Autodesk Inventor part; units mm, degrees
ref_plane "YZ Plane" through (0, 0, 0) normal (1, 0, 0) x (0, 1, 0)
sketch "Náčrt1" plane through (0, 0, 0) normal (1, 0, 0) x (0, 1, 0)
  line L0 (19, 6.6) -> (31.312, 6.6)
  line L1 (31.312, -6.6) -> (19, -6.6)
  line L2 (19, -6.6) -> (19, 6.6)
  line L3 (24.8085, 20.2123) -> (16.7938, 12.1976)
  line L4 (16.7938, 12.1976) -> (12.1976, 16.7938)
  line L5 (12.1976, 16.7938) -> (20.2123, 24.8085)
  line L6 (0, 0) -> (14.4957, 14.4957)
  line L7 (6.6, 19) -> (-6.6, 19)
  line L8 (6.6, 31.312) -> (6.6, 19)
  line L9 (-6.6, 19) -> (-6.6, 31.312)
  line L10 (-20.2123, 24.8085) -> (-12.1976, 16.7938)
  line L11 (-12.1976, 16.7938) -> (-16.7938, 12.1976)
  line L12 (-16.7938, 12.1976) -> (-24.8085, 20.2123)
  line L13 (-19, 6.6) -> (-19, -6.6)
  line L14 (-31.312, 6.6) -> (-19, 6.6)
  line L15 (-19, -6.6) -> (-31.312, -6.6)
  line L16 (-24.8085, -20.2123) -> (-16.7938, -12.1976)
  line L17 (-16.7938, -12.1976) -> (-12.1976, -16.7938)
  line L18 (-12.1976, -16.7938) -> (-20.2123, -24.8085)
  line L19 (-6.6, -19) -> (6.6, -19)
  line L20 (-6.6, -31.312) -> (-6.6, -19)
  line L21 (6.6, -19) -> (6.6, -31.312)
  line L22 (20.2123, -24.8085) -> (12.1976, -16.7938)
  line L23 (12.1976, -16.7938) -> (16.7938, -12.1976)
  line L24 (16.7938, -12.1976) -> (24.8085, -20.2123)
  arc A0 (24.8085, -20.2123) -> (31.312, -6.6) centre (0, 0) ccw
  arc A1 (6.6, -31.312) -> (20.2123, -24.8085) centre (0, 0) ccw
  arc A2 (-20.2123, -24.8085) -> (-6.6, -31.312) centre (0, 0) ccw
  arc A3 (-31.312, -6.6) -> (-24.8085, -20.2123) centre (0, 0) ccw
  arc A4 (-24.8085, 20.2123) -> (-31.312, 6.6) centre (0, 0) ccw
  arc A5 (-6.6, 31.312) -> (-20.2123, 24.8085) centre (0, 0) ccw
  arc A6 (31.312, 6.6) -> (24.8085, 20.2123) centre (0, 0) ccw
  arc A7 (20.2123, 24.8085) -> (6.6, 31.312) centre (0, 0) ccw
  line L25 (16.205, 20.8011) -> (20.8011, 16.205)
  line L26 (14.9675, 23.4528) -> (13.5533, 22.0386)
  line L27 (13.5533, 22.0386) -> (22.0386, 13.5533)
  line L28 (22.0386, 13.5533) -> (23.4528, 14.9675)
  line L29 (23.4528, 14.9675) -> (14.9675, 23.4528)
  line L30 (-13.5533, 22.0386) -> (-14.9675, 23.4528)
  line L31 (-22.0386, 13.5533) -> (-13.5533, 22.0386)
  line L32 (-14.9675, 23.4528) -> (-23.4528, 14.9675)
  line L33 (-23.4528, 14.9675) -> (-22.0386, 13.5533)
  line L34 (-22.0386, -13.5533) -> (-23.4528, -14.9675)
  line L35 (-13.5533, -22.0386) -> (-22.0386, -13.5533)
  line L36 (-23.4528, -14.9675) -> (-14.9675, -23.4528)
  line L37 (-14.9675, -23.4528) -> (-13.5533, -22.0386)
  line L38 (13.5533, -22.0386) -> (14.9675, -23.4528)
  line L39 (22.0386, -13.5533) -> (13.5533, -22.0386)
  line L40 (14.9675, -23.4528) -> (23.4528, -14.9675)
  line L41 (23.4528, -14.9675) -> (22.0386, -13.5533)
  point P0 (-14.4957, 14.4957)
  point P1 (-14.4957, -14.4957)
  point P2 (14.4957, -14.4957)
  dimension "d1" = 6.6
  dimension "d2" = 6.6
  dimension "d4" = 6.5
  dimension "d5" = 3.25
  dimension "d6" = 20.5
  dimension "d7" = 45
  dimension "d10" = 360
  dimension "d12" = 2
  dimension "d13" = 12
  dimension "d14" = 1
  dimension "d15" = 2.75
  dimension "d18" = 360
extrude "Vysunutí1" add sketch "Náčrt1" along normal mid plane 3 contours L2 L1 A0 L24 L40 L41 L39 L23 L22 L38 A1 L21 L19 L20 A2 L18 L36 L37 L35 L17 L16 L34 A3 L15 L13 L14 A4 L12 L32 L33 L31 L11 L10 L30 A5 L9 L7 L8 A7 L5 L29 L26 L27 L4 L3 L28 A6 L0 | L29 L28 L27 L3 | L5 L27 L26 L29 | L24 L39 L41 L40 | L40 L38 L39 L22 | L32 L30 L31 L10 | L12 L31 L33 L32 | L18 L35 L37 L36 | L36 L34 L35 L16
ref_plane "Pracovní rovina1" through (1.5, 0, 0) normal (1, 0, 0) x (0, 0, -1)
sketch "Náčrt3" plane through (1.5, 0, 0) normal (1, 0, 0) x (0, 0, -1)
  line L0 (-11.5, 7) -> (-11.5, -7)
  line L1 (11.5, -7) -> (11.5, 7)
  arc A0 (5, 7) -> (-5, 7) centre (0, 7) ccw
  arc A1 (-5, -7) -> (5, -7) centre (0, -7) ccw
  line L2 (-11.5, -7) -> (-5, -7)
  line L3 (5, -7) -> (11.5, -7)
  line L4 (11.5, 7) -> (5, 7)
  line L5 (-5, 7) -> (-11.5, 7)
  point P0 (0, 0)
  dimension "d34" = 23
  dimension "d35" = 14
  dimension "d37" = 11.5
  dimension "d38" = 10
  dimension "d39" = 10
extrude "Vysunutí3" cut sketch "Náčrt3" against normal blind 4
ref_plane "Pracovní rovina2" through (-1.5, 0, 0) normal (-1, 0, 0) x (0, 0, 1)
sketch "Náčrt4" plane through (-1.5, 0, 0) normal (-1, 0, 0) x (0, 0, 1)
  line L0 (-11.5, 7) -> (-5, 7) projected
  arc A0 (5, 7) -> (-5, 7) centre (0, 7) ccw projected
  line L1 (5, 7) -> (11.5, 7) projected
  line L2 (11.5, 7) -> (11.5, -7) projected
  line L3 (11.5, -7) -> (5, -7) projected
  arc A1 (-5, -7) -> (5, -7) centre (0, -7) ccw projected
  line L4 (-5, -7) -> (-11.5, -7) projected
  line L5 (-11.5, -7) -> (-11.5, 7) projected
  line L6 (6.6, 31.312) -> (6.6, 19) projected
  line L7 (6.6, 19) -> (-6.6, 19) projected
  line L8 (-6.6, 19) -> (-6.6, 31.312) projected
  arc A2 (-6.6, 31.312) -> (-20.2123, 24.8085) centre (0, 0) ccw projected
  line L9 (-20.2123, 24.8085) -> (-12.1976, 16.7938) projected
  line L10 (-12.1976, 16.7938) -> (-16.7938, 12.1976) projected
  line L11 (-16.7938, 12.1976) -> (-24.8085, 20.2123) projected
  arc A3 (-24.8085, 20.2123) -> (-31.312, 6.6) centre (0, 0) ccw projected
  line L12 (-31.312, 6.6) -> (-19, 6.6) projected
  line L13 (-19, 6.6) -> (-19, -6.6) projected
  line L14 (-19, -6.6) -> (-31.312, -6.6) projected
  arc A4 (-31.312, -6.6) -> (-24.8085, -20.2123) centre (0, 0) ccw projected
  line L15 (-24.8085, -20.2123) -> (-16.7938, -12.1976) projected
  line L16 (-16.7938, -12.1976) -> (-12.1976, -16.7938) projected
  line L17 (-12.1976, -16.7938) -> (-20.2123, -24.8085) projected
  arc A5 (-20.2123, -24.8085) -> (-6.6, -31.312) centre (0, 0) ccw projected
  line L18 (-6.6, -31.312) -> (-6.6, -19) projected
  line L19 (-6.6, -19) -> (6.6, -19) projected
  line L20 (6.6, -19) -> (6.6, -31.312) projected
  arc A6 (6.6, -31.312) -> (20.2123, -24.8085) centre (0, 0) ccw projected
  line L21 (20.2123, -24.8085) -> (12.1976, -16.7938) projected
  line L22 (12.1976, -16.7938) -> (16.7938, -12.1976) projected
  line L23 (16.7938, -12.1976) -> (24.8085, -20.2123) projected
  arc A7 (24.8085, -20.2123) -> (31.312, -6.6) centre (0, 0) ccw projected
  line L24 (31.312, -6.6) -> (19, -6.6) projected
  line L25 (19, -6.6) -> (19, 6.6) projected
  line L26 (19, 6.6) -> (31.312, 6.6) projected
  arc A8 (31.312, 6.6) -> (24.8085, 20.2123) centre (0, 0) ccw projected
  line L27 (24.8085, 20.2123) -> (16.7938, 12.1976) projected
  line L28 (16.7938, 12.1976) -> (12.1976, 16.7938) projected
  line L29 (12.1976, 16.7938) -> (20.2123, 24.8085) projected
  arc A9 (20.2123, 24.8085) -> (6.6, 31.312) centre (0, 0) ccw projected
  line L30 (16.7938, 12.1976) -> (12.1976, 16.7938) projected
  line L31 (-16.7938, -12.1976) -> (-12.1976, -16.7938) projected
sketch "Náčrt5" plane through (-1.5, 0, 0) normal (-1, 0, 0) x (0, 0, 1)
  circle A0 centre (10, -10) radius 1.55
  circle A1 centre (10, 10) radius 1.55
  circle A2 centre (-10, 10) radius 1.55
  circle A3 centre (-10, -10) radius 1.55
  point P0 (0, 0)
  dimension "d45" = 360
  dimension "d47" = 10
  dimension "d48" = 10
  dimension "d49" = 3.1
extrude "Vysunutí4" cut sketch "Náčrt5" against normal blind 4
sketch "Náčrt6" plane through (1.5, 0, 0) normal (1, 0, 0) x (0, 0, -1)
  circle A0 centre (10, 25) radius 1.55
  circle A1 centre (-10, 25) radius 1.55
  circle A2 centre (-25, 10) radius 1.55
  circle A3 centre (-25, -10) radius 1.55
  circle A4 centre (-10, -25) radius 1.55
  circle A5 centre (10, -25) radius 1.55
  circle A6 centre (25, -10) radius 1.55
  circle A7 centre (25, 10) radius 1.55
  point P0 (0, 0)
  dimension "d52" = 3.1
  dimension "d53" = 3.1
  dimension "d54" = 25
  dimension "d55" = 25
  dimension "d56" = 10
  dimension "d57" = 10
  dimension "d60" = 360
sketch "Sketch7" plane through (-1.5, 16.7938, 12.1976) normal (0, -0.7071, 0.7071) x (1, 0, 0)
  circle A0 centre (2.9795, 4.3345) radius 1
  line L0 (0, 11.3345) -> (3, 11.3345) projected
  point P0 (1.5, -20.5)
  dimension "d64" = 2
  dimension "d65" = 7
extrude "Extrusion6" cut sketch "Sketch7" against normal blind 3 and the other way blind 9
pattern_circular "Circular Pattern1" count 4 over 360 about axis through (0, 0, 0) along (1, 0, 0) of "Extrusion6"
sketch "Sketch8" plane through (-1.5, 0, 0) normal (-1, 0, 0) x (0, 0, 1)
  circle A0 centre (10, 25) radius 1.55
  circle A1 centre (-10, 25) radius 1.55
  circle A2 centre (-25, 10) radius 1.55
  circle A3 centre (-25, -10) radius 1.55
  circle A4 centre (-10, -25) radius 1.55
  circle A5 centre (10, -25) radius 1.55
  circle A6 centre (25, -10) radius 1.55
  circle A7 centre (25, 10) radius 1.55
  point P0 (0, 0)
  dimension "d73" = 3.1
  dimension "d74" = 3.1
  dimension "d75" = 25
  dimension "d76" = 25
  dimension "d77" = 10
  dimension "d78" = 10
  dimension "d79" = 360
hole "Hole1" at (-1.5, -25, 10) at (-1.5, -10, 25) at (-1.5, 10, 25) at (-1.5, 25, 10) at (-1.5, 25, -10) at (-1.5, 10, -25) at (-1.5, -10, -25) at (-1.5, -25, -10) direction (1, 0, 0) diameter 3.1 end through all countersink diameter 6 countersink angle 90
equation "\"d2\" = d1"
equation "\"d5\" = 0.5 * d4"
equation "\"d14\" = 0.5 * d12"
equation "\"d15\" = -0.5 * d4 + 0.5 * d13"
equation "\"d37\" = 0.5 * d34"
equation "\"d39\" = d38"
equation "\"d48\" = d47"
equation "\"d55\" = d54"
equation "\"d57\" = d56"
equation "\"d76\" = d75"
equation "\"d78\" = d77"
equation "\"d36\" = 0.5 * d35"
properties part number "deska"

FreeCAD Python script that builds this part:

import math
import FreeCAD as App
import Part
import Sketcher
Q = App.Units.Quantity

doc = App.newDocument("Part")
body = doc.addObject("PartDesign::Body", "Body")

# Sketch on YZ plane
sketch1 = body.newObject("Sketcher::SketchObject", "Sketch")
sketch1.AttachmentSupport = (doc.getObject("YZ_Plane"), [""])
sketch1.MapMode = "FlatFace"
sketch1.addGeometry([
    Part.LineSegment(App.Vector(19, -7, 0), App.Vector(19, 7, 0)),  # 0
    Part.LineSegment(App.Vector(19, 7, 0), App.Vector(31, 7, 0)),  # 1
    Part.ArcOfCircle(Part.Circle(App.Vector(0, 0, 0), App.Vector(0, 0, 1), 32), math.radians(12), math.radians(39)),  # 2
    Part.LineSegment(App.Vector(25, 20, 0), App.Vector(17, 12, 0)),  # 3
    Part.LineSegment(App.Vector(17, 12, 0), App.Vector(12, 17, 0)),  # 4
    Part.LineSegment(App.Vector(12, 17, 0), App.Vector(20, 25, 0)),  # 5
    Part.ArcOfCircle(Part.Circle(App.Vector(0, 0, 0), App.Vector(0, 0, 1), 32), math.radians(51), math.radians(78)),  # 6
    Part.LineSegment(App.Vector(7, 31, 0), App.Vector(7, 19, 0)),  # 7
    Part.LineSegment(App.Vector(7, 19, 0), App.Vector(-7, 19, 0)),  # 8
    Part.LineSegment(App.Vector(-7, 19, 0), App.Vector(-7, 31, 0)),  # 9
    Part.ArcOfCircle(Part.Circle(App.Vector(0, 0, 0), App.Vector(0, 0, 1), 32), math.radians(102), math.radians(129)),  # 10
    Part.LineSegment(App.Vector(-20, 25, 0), App.Vector(-12, 17, 0)),  # 11
    Part.LineSegment(App.Vector(-12, 17, 0), App.Vector(-17, 12, 0)),  # 12
    Part.LineSegment(App.Vector(-17, 12, 0), App.Vector(-25, 20, 0)),  # 13
    Part.ArcOfCircle(Part.Circle(App.Vector(0, 0, 0), App.Vector(0, 0, 1), 32), math.radians(141), math.radians(168)),  # 14
    Part.LineSegment(App.Vector(-31, 7, 0), App.Vector(-19, 7, 0)),  # 15
    Part.LineSegment(App.Vector(-19, 7, 0), App.Vector(-19, -7, 0)),  # 16
    Part.LineSegment(App.Vector(-19, -7, 0), App.Vector(-31, -7, 0)),  # 17
    Part.ArcOfCircle(Part.Circle(App.Vector(0, 0, 0), App.Vector(0, 0, 1), 32), math.radians(-168), math.radians(-141)),  # 18
    Part.LineSegment(App.Vector(-25, -20, 0), App.Vector(-17, -12, 0)),  # 19
    Part.LineSegment(App.Vector(-17, -12, 0), App.Vector(-12, -17, 0)),  # 20
    Part.LineSegment(App.Vector(-12, -17, 0), App.Vector(-20, -25, 0)),  # 21
    Part.ArcOfCircle(Part.Circle(App.Vector(0, 0, 0), App.Vector(0, 0, 1), 32), math.radians(-129), math.radians(-102)),  # 22
    Part.LineSegment(App.Vector(-7, -31, 0), App.Vector(-7, -19, 0)),  # 23
    Part.LineSegment(App.Vector(-7, -19, 0), App.Vector(7, -19, 0)),  # 24
    Part.LineSegment(App.Vector(7, -19, 0), App.Vector(7, -31, 0)),  # 25
    Part.ArcOfCircle(Part.Circle(App.Vector(0, 0, 0), App.Vector(0, 0, 1), 32), math.radians(-78), math.radians(-51)),  # 26
    Part.LineSegment(App.Vector(20, -25, 0), App.Vector(12, -17, 0)),  # 27
    Part.LineSegment(App.Vector(12, -17, 0), App.Vector(17, -12, 0)),  # 28
    Part.LineSegment(App.Vector(17, -12, 0), App.Vector(25, -20, 0)),  # 29
    Part.ArcOfCircle(Part.Circle(App.Vector(0, 0, 0), App.Vector(0, 0, 1), 32), math.radians(-39), math.radians(-12)),  # 30
    Part.LineSegment(App.Vector(31, -7, 0), App.Vector(19, -7, 0)),  # 31
], False)
sketch1.addConstraint([
    Sketcher.Constraint("Coincident", 0, 2, 1, 1),
    Sketcher.Constraint("Coincident", 1, 2, 2, 1),
    Sketcher.Constraint("Coincident", 2, 2, 3, 1),
    Sketcher.Constraint("Coincident", 3, 2, 4, 1),
    Sketcher.Constraint("Coincident", 4, 2, 5, 1),
    Sketcher.Constraint("Coincident", 5, 2, 6, 1),
    Sketcher.Constraint("Coincident", 6, 2, 7, 1),
    Sketcher.Constraint("Coincident", 7, 2, 8, 1),
    Sketcher.Constraint("Coincident", 8, 2, 9, 1),
    Sketcher.Constraint("Coincident", 9, 2, 10, 1),
    Sketcher.Constraint("Coincident", 10, 2, 11, 1),
    Sketcher.Constraint("Coincident", 11, 2, 12, 1),
    Sketcher.Constraint("Coincident", 12, 2, 13, 1),
    Sketcher.Constraint("Coincident", 13, 2, 14, 1),
    Sketcher.Constraint("Coincident", 14, 2, 15, 1),
    Sketcher.Constraint("Coincident", 15, 2, 16, 1),
    Sketcher.Constraint("Coincident", 16, 2, 17, 1),
    Sketcher.Constraint("Coincident", 17, 2, 18, 1),
    Sketcher.Constraint("Coincident", 18, 2, 19, 1),
    Sketcher.Constraint("Coincident", 19, 2, 20, 1),
    Sketcher.Constraint("Coincident", 20, 2, 21, 1),
    Sketcher.Constraint("Coincident", 21, 2, 22, 1),
    Sketcher.Constraint("Coincident", 22, 2, 23, 1),
    Sketcher.Constraint("Coincident", 23, 2, 24, 1),
    Sketcher.Constraint("Coincident", 24, 2, 25, 1),
    Sketcher.Constraint("Coincident", 25, 2, 26, 1),
    Sketcher.Constraint("Coincident", 26, 2, 27, 1),
    Sketcher.Constraint("Coincident", 27, 2, 28, 1),
    Sketcher.Constraint("Coincident", 28, 2, 29, 1),
    Sketcher.Constraint("Coincident", 29, 2, 30, 1),
    Sketcher.Constraint("Coincident", 30, 2, 31, 1),
    Sketcher.Constraint("Coincident", 31, 2, 0, 1),
    Sketcher.Constraint("Vertical", 0),
    Sketcher.Constraint("Horizontal", 1),
    Sketcher.Constraint("Vertical", 7),
    Sketcher.Constraint("Horizontal", 8),
    Sketcher.Constraint("Vertical", 9),
    Sketcher.Constraint("Horizontal", 15),
    Sketcher.Constraint("Vertical", 16),
    Sketcher.Constraint("Horizontal", 17),
    Sketcher.Constraint("Vertical", 23),
    Sketcher.Constraint("Horizontal", 24),
    Sketcher.Constraint("Vertical", 25),
    Sketcher.Constraint("Horizontal", 31),
    Sketcher.Constraint("Coincident", 2, 3, -1, 1),
    Sketcher.Constraint("Coincident", 6, 3, -1, 1),
    Sketcher.Constraint("Coincident", 10, 3, -1, 1),
    Sketcher.Constraint("Coincident", 14, 3, -1, 1),
    Sketcher.Constraint("Coincident", 18, 3, -1, 1),
    Sketcher.Constraint("Coincident", 22, 3, -1, 1),
    Sketcher.Constraint("Coincident", 26, 3, -1, 1),
    Sketcher.Constraint("Coincident", 30, 3, -1, 1),
    Sketcher.Constraint("Equal", 2, 6),
    Sketcher.Constraint("Equal", 6, 10),
    Sketcher.Constraint("Equal", 10, 14),
    Sketcher.Constraint("Equal", 14, 18),
    Sketcher.Constraint("Equal", 18, 22),
    Sketcher.Constraint("Equal", 22, 26),
    Sketcher.Constraint("Equal", 26, 30),
    Sketcher.Constraint("Symmetric", 0, 2, 16, 2, -1, 1),
    Sketcher.Constraint("Symmetric", 3, 2, 19, 2, -1, 1),
    Sketcher.Constraint("Symmetric", 4, 2, 20, 2, -1, 1),
    Sketcher.Constraint("Symmetric", 7, 2, 23, 2, -1, 1),
    Sketcher.Constraint("Symmetric", 11, 2, 27, 2, -1, 1),
    Sketcher.Constraint("Symmetric", 12, 2, 28, 2, -1, 1),
    Sketcher.Constraint("Symmetric", 4, 2, 11, 2, -2),
    Sketcher.Constraint("Symmetric", 3, 2, 12, 2, -2),
    Sketcher.Constraint("Perpendicular", 3, 4),
    Sketcher.Constraint("Perpendicular", 4, 5),
    Sketcher.Constraint("Perpendicular", 5, 11),
    Sketcher.Constraint("Perpendicular", 11, 12),
    Sketcher.Constraint("Perpendicular", 12, 13),
    Sketcher.Constraint("Perpendicular", 13, 19),
    Sketcher.Constraint("Perpendicular", 20, 21),
    Sketcher.Constraint("Perpendicular", 21, 27),
    Sketcher.Constraint("Perpendicular", 28, 29),
    Sketcher.Constraint("Horizontal", 6, 2, 9, 2),
    Sketcher.Constraint("Horizontal", 1, 2, 14, 2),
    Sketcher.Constraint("Horizontal", 22, 2, 25, 2),
    Sketcher.Constraint("Horizontal", 17, 2, 30, 2),
    Sketcher.Constraint("Equal", 24, 0),
    Sketcher.Constraint("Equal", 31, 7),
    Sketcher.Constraint("Equal", 3, 5),
    Sketcher.Constraint("Radius", 2, Q("32 mm")),
    Sketcher.Constraint("Distance", 4, Q("6.5 mm")),
    Sketcher.Constraint("DistanceY", -1, 1, 0, 2, Q("6.6 mm")),
    Sketcher.Constraint("DistanceX", -1, 1, 0, 2, Q("19 mm")),
    Sketcher.Constraint("DistanceX", 4, 2, 2, 2, Q("12.611 mm")),
])
pad1 = body.newObject("PartDesign::Pad", "Pad")
pad1.Profile = sketch1
pad1.Length = 3
pad1.Midplane = True

# Sketch on YZ plane
sketch2 = body.newObject("Sketcher::SketchObject", "Sketch001")
sketch2.AttachmentSupport = (doc.getObject("YZ_Plane"), [""])
sketch2.MapMode = "FlatFace"
sketch2.AttachmentOffset = App.Placement(App.Vector(0, 0, 1.5), App.Rotation())
sketch2.addGeometry([
    Part.LineSegment(App.Vector(7, 5, 0), App.Vector(7, 12, 0)),  # 0
    Part.LineSegment(App.Vector(7, 12, 0), App.Vector(-7, 12, 0)),  # 1
    Part.LineSegment(App.Vector(-7, 12, 0), App.Vector(-7, 5, 0)),  # 2
    Part.ArcOfCircle(Part.Circle(App.Vector(-7, 0, 0), App.Vector(0, 0, 1), 5), math.radians(90), math.radians(270)),  # 3
    Part.LineSegment(App.Vector(-7, -5, 0), App.Vector(-7, -12, 0)),  # 4
    Part.LineSegment(App.Vector(-7, -12, 0), App.Vector(7, -12, 0)),  # 5
    Part.LineSegment(App.Vector(7, -12, 0), App.Vector(7, -5, 0)),  # 6
    Part.ArcOfCircle(Part.Circle(App.Vector(7, 0, 0), App.Vector(0, 0, 1), 5), math.radians(-90), math.radians(90)),  # 7
], False)
sketch2.addConstraint([
    Sketcher.Constraint("Coincident", 0, 2, 1, 1),
    Sketcher.Constraint("Coincident", 1, 2, 2, 1),
    Sketcher.Constraint("Coincident", 2, 2, 3, 1),
    Sketcher.Constraint("Coincident", 3, 2, 4, 1),
    Sketcher.Constraint("Coincident", 4, 2, 5, 1),
    Sketcher.Constraint("Coincident", 5, 2, 6, 1),
    Sketcher.Constraint("Coincident", 6, 2, 7, 1),
    Sketcher.Constraint("Coincident", 7, 2, 0, 1),
    Sketcher.Constraint("Vertical", 0),
    Sketcher.Constraint("Horizontal", 1),
    Sketcher.Constraint("Vertical", 2),
    Sketcher.Constraint("Vertical", 4),
    Sketcher.Constraint("Horizontal", 5),
    Sketcher.Constraint("Vertical", 6),
    Sketcher.Constraint("Equal", 3, 7),
    Sketcher.Constraint("Symmetric", 3, 3, 7, 3, -1, 1),
    Sketcher.Constraint("Symmetric", 0, 2, 4, 2, -1, 1),
    Sketcher.Constraint("Symmetric", 3, 2, 6, 2, -2),
    Sketcher.Constraint("Vertical", 7, 3, 0, 2),
    Sketcher.Constraint("Vertical", 3, 3, 1, 2),
    Sketcher.Constraint("Radius", 3, Q("5 mm")),
    Sketcher.Constraint("DistanceX", 1, 2, 1, 1, Q("14 mm")),
    Sketcher.Constraint("DistanceY", 4, 2, 1, 2, Q("23 mm")),
])
pocket1 = body.newObject("PartDesign::Pocket", "Pocket")
pocket1.Profile = sketch2
pocket1.Length = 4

# Sketch on YZ plane
sketch3 = body.newObject("Sketcher::SketchObject", "Sketch002")
sketch3.AttachmentSupport = (doc.getObject("YZ_Plane"), [""])
sketch3.MapMode = "FlatFace"
sketch3.AttachmentOffset = App.Placement(App.Vector(0, 0, -1.5), App.Rotation())
sketch3.addGeometry([
    Part.Circle(App.Vector(-10, 10, 0), App.Vector(0, 0, 1), 1.6),
    Part.Circle(App.Vector(10, 10, 0), App.Vector(0, 0, 1), 1.6),
    Part.Circle(App.Vector(10, -10, 0), App.Vector(0, 0, 1), 1.6),
    Part.Circle(App.Vector(-10, -10, 0), App.Vector(0, 0, 1), 1.6),
], False)
sketch3.addConstraint([
    Sketcher.Constraint("Equal", 0, 1),
    Sketcher.Constraint("Equal", 1, 2),
    Sketcher.Constraint("Equal", 2, 3),
    Sketcher.Constraint("Symmetric", 0, 3, 2, 3, -1, 1),
    Sketcher.Constraint("Symmetric", 1, 3, 3, 3, -1, 1),
    Sketcher.Constraint("Symmetric", 0, 3, 1, 3, -2),
    Sketcher.Constraint("Diameter", 0, Q("3.1 mm")),
    Sketcher.Constraint("DistanceX", 0, 3, -1, 1, Q("10 mm")),
    Sketcher.Constraint("DistanceY", -1, 1, 0, 3, Q("10 mm")),
])
pocket2 = body.newObject("PartDesign::Pocket", "Pocket001")
pocket2.Profile = sketch3
pocket2.Length = 4
pocket2.Reversed = True

# Sketch on an angled plane
sketch4 = body.newObject("Sketcher::SketchObject", "Sketch003")
sketch4.Placement = App.Placement(App.Vector(-1.5, 16.7938, 12.1976), App.Rotation(App.Vector(1, 0, 0), App.Vector(0, 0.707106781, 0.707106781), App.Vector(0, -0.707106781, 0.707106781), "ZXY"))
sketch4.addGeometry(Part.Circle(App.Vector(3, 4.3, 0), App.Vector(0, 0, 1), 1), False)
sketch4.addConstraint([
    Sketcher.Constraint("Diameter", 0, Q("2 mm")),
    Sketcher.Constraint("DistanceX", -1, 1, 0, 3, Q("2.9795 mm")),
    Sketcher.Constraint("DistanceY", -1, 1, 0, 3, Q("4.3345 mm")),
])
pocket3 = body.newObject("PartDesign::Pocket", "Pocket002")
pocket3.Profile = sketch4
pocket3.Type = "TwoLengths"
pocket3.Length = 3
pocket3.Length2 = 9
doc.recompute()

polarpattern = body.newObject("PartDesign::PolarPattern", "PolarPattern")
polarpattern.Originals = [pocket3]
polarpattern.Axis = (doc.getObject("X_Axis"), [""])
polarpattern.Angle = 360
polarpattern.Occurrences = 4
body.Tip = polarpattern

# Sketch on YZ plane
sketch5 = body.newObject("Sketcher::SketchObject", "Sketch004")
sketch5.AttachmentSupport = (doc.getObject("YZ_Plane"), [""])
sketch5.MapMode = "FlatFace"
sketch5.AttachmentOffset = App.Placement(App.Vector(0, 0, -1.5), App.Rotation())
sketch5.addGeometry([
    Part.Circle(App.Vector(-25, 10, 0), App.Vector(0, 0, 1), 1.6),  # 0
    Part.Circle(App.Vector(-10, 25, 0), App.Vector(0, 0, 1), 1.6),  # 1
    Part.Circle(App.Vector(10, 25, 0), App.Vector(0, 0, 1), 1.6),  # 2
    Part.Circle(App.Vector(25, 10, 0), App.Vector(0, 0, 1), 1.6),  # 3
    Part.Circle(App.Vector(25, -10, 0), App.Vector(0, 0, 1), 1.6),  # 4
    Part.Circle(App.Vector(10, -25, 0), App.Vector(0, 0, 1), 1.6),  # 5
    Part.Circle(App.Vector(-10, -25, 0), App.Vector(0, 0, 1), 1.6),  # 6
    Part.Circle(App.Vector(-25, -10, 0), App.Vector(0, 0, 1), 1.6),  # 7
], False)
sketch5.addConstraint([
    Sketcher.Constraint("Equal", 0, 1),
    Sketcher.Constraint("Equal", 1, 2),
    Sketcher.Constraint("Equal", 2, 3),
    Sketcher.Constraint("Equal", 3, 4),
    Sketcher.Constraint("Equal", 4, 5),
    Sketcher.Constraint("Equal", 5, 6),
    Sketcher.Constraint("Equal", 6, 7),
    Sketcher.Constraint("Symmetric", 0, 3, 4, 3, -1, 1),
    Sketcher.Constraint("Symmetric", 1, 3, 5, 3, -1, 1),
    Sketcher.Constraint("Symmetric", 2, 3, 6, 3, -1, 1),
    Sketcher.Constraint("Symmetric", 3, 3, 7, 3, -1, 1),
    Sketcher.Constraint("Symmetric", 1, 3, 2, 3, -2),
    Sketcher.Constraint("Symmetric", 0, 3, 3, 3, -2),
    Sketcher.Constraint("Diameter", 0, Q("3.1 mm")),
    Sketcher.Constraint("DistanceX", 0, 3, -1, 1, Q("25 mm")),
    Sketcher.Constraint("DistanceY", -1, 1, 0, 3, Q("10 mm")),
    Sketcher.Constraint("DistanceX", 1, 3, -1, 1, Q("10 mm")),
    Sketcher.Constraint("DistanceY", -1, 1, 1, 3, Q("25 mm")),
])
doc.recompute()
hole = body.newObject("PartDesign::Hole", "Hole")
hole.Profile = sketch5
hole.ThreadType = "None"
hole.Diameter = 3.1
hole.DepthType = "ThroughAll"
hole.HoleCutType = "Countersink"
hole.HoleCutDiameter = 6
hole.HoleCutCountersinkAngle = 90
hole.Reversed = True

doc.recompute()
